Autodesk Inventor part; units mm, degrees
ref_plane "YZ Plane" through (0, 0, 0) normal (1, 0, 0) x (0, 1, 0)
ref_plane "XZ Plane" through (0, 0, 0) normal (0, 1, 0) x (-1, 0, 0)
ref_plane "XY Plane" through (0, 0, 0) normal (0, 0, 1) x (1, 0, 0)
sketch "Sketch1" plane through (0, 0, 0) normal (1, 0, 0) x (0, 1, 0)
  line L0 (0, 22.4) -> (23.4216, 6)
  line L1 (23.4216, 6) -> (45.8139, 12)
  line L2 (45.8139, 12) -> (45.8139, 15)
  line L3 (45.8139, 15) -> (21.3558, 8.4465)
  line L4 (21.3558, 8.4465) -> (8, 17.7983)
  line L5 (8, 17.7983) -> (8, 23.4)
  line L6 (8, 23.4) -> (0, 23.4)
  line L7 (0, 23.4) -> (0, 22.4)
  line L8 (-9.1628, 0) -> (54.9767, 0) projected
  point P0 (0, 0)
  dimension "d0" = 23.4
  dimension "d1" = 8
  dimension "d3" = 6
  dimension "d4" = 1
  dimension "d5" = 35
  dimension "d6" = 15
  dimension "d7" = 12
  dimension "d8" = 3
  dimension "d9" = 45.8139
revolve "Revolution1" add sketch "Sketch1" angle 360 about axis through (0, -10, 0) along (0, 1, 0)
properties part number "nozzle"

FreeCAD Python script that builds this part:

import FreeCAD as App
import Part
import Sketcher
from FreeCAD import Vector
Q = App.Units.Quantity

doc = App.newDocument("Part")
body = doc.addObject("PartDesign::Body", "Body")

# Sketch on YZ plane
sketch1 = body.newObject("Sketcher::SketchObject", "Sketch")
sketch1.AttachmentSupport = (doc.getObject("YZ_Plane"), [""])
sketch1.MapMode = "FlatFace"
sketch1.addGeometry(Part.LineSegment(Vector(0, 23.4, 0), Vector(0, 22.4, 0)), False)
sketch1.addGeometry(Part.LineSegment(Vector(0, 22.4, 0), Vector(23.4, 6, 0)), False)
sketch1.addGeometry(Part.LineSegment(Vector(23.4, 6, 0), Vector(45.8, 12, 0)), False)
sketch1.addGeometry(Part.LineSegment(Vector(45.8, 12, 0), Vector(45.8, 15, 0)), False)
sketch1.addGeometry(Part.LineSegment(Vector(45.8, 15, 0), Vector(21.4, 8.4, 0)), False)
sketch1.addGeometry(Part.LineSegment(Vector(21.4, 8.4, 0), Vector(8, 17.8, 0)), False)
sketch1.addGeometry(Part.LineSegment(Vector(8, 17.8, 0), Vector(8, 23.4, 0)), False)
sketch1.addGeometry(Part.LineSegment(Vector(8, 23.4, 0), Vector(0, 23.4, 0)), False)
sketch1.addConstraint(Sketcher.Constraint("Coincident", 0, 2, 1, 1))
sketch1.addConstraint(Sketcher.Constraint("Coincident", 1, 2, 2, 1))
sketch1.addConstraint(Sketcher.Constraint("Coincident", 2, 2, 3, 1))
sketch1.addConstraint(Sketcher.Constraint("Coincident", 3, 2, 4, 1))
sketch1.addConstraint(Sketcher.Constraint("Coincident", 4, 2, 5, 1))
sketch1.addConstraint(Sketcher.Constraint("Coincident", 5, 2, 6, 1))
sketch1.addConstraint(Sketcher.Constraint("Coincident", 6, 2, 7, 1))
sketch1.addConstraint(Sketcher.Constraint("Coincident", 7, 2, 0, 1))
sketch1.addConstraint(Sketcher.Constraint("Vertical", 0))
sketch1.addConstraint(Sketcher.Constraint("Vertical", 3))
sketch1.addConstraint(Sketcher.Constraint("Vertical", 6))
sketch1.addConstraint(Sketcher.Constraint("Horizontal", 7))
sketch1.addConstraint(Sketcher.Constraint("PointOnObject", 0, 2, -2))
sketch1.addConstraint(Sketcher.Constraint("Parallel", 2, 4))
sketch1.addConstraint(Sketcher.Constraint("Parallel", 1, 5))
sketch1.addConstraint(Sketcher.Constraint("DistanceX", 7, 2, 7, 1, 8.0))
sketch1.addConstraint(Sketcher.Constraint("DistanceY", 0, 2, 0, 1, 1.0))
sketch1.addConstraint(Sketcher.Constraint("DistanceY", 3, 1, 3, 2, 3.0))
sketch1.addConstraint(Sketcher.Constraint("Angle", 1, Q("-35 deg")))
sketch1.addConstraint(Sketcher.Constraint("Angle", 2, Q("15 deg")))
sketch1.addConstraint(Sketcher.Constraint("DistanceY", -1, 1, 1, 2, 6.0))
sketch1.addConstraint(Sketcher.Constraint("DistanceY", -1, 1, 2, 2, 12.0))
sketch1.addConstraint(Sketcher.Constraint("DistanceY", -1, 1, 6, 2, 23.4))
sketch1.addConstraint(Sketcher.Constraint("Distance", 4, 25.321))
revolution = body.newObject("PartDesign::Revolution", "Revolution")
revolution.Profile = sketch1
revolution.ReferenceAxis = (sketch1, ["H_Axis"])
revolution.Angle = 360

doc.recompute()
